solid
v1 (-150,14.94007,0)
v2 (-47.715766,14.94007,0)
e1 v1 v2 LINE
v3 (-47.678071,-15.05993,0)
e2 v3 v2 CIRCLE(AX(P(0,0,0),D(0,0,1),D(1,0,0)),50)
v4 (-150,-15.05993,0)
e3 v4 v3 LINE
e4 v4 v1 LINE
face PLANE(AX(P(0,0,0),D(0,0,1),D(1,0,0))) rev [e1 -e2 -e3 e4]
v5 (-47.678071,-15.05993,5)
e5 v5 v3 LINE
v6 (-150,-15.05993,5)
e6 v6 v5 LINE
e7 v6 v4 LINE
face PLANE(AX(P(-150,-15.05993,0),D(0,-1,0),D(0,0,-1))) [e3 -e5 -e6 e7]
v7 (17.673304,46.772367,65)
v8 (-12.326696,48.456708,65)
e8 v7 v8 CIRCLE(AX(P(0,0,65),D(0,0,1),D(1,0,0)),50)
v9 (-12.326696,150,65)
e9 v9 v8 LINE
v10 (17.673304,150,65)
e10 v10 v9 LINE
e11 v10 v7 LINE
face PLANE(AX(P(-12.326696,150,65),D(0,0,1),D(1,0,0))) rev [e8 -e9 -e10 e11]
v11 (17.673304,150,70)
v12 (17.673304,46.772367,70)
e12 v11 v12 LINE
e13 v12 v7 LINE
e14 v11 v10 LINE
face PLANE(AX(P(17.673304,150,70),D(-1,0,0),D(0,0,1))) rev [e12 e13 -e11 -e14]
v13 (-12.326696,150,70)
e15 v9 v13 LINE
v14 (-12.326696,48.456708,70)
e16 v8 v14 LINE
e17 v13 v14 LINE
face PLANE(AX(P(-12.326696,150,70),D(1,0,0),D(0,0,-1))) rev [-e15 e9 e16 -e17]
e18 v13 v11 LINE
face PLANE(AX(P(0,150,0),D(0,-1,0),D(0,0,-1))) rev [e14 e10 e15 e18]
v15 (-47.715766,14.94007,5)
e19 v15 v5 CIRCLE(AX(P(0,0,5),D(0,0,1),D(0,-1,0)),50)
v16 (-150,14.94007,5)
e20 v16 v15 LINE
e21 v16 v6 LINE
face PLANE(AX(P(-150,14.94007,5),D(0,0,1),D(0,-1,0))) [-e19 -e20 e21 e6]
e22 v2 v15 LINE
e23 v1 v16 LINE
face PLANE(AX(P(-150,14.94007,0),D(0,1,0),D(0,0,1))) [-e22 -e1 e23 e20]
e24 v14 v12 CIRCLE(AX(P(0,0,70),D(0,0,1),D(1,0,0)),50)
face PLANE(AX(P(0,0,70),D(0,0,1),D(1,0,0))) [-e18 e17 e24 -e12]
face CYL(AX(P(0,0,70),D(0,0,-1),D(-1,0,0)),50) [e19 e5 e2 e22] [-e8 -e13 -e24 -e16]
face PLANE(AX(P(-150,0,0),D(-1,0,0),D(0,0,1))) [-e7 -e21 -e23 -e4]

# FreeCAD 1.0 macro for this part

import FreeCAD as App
import Part
import Sketcher
from FreeCAD import Vector
Q = App.Units.Quantity


def add_polygon(sketch, points):
    """Adds a closed chain of lines whose ends are joined by coincident constraints."""
    first, n = sketch.GeometryCount, len(points)
    for a, b in zip(points, points[1:] + points[:1]):
        sketch.addGeometry(Part.LineSegment(App.Vector(*a, 0), App.Vector(*b, 0)), False)
    for i in range(n):
        sketch.addConstraint(Sketcher.Constraint("Coincident", first + i, 2, first + (i + 1) % n, 1))

doc = App.newDocument("Part")
params = doc.addObject("Spreadsheet::Sheet", "Params")
for row, (alias, value) in enumerate([
    ("sketch1_diameter", "100 mm"),
    ("pad1_length", "70 mm"),
    ("sketch2_width", "30 mm"),
    ("sketch2_height", "5 mm"),
    ("pad2_length", "150 mm"),
    ("sketch3_width", "30 mm"),
    ("sketch3_height", "5 mm"),
    ("pad3_length", "150 mm"),
], start=1):
    params.set(f"A{row}", alias)
    params.set(f"B{row}", "=" + value)
    params.setAlias(f"B{row}", alias)

body = doc.addObject("PartDesign::Body", "Body")

# Sketch on XY plane
sketch1 = body.newObject("Sketcher::SketchObject", "Sketch")
sketch1.AttachmentSupport = (doc.getObject("XY_Plane"), [""])
sketch1.MapMode = "FlatFace"
sketch1.addGeometry(Part.Circle(Vector(0, 0, 0), Vector(0, 0, 1), 50), False)
sketch1.addConstraint(Sketcher.Constraint("Coincident", 0, 3, -1, 1))
sketch1.addConstraint(Sketcher.Constraint("Diameter", 0, Q("100 mm")))
sketch1.setExpression("Constraints[1]", "Params.sketch1_diameter")
pad1 = body.newObject("PartDesign::Pad", "Pad")
pad1.Profile = sketch1
pad1.setExpression("Length", "Params.pad1_length")

# Sketch on XZ plane
sketch2 = body.newObject("Sketcher::SketchObject", "Sketch001")
sketch2.AttachmentSupport = (doc.getObject("XZ_Plane"), [""])
sketch2.MapMode = "FlatFace"
add_polygon(sketch2, [(-12, 65), (-12, 70), (18, 70), (18, 65)])  # lines 0-3
sketch2.addConstraint(Sketcher.Constraint("Vertical", 0))
sketch2.addConstraint(Sketcher.Constraint("Horizontal", 1))
sketch2.addConstraint(Sketcher.Constraint("Vertical", 2))
sketch2.addConstraint(Sketcher.Constraint("Horizontal", 3))
sketch2.addConstraint(Sketcher.Constraint("DistanceX", 1, 1, 1, 2, Q("30 mm")))
sketch2.addConstraint(Sketcher.Constraint("DistanceY", 0, 1, 0, 2, Q("5 mm")))
sketch2.addConstraint(Sketcher.Constraint("DistanceY", -1, 1, 0, 2, Q("70 mm")))
sketch2.addConstraint(Sketcher.Constraint("DistanceX", 0, 2, -1, 1, Q("12.326696 mm")))
sketch2.setExpression("Constraints[8]", "Params.sketch2_width")
sketch2.setExpression("Constraints[9]", "Params.sketch2_height")
pad2 = body.newObject("PartDesign::Pad", "Pad001")
pad2.Profile = sketch2
pad2.setExpression("Length", "Params.pad2_length")
pad2.Reversed = True

# Sketch on YZ plane
sketch3 = body.newObject("Sketcher::SketchObject", "Sketch002")
sketch3.AttachmentSupport = (doc.getObject("YZ_Plane"), [""])
sketch3.MapMode = "FlatFace"
add_polygon(sketch3, [(15, 5), (-15, 5), (-15, 0), (15, 0)])  # lines 0-3
sketch3.addConstraint(Sketcher.Constraint("Horizontal", 0))
sketch3.addConstraint(Sketcher.Constraint("Vertical", 1))
sketch3.addConstraint(Sketcher.Constraint("Horizontal", 2))
sketch3.addConstraint(Sketcher.Constraint("Vertical", 3))
sketch3.addConstraint(Sketcher.Constraint("PointOnObject", 1, 2, -1))
sketch3.addConstraint(Sketcher.Constraint("DistanceX", 0, 2, 0, 1, Q("30 mm")))
sketch3.addConstraint(Sketcher.Constraint("DistanceY", 1, 2, 1, 1, Q("5 mm")))
sketch3.addConstraint(Sketcher.Constraint("DistanceX", 0, 2, -1, 1, Q("15.05993 mm")))
sketch3.setExpression("Constraints[9]", "Params.sketch3_width")
sketch3.setExpression("Constraints[10]", "Params.sketch3_height")
pad3 = body.newObject("PartDesign::Pad", "Pad002")
pad3.Profile = sketch3
pad3.setExpression("Length", "Params.pad3_length")
pad3.Reversed = True

doc.recompute()
